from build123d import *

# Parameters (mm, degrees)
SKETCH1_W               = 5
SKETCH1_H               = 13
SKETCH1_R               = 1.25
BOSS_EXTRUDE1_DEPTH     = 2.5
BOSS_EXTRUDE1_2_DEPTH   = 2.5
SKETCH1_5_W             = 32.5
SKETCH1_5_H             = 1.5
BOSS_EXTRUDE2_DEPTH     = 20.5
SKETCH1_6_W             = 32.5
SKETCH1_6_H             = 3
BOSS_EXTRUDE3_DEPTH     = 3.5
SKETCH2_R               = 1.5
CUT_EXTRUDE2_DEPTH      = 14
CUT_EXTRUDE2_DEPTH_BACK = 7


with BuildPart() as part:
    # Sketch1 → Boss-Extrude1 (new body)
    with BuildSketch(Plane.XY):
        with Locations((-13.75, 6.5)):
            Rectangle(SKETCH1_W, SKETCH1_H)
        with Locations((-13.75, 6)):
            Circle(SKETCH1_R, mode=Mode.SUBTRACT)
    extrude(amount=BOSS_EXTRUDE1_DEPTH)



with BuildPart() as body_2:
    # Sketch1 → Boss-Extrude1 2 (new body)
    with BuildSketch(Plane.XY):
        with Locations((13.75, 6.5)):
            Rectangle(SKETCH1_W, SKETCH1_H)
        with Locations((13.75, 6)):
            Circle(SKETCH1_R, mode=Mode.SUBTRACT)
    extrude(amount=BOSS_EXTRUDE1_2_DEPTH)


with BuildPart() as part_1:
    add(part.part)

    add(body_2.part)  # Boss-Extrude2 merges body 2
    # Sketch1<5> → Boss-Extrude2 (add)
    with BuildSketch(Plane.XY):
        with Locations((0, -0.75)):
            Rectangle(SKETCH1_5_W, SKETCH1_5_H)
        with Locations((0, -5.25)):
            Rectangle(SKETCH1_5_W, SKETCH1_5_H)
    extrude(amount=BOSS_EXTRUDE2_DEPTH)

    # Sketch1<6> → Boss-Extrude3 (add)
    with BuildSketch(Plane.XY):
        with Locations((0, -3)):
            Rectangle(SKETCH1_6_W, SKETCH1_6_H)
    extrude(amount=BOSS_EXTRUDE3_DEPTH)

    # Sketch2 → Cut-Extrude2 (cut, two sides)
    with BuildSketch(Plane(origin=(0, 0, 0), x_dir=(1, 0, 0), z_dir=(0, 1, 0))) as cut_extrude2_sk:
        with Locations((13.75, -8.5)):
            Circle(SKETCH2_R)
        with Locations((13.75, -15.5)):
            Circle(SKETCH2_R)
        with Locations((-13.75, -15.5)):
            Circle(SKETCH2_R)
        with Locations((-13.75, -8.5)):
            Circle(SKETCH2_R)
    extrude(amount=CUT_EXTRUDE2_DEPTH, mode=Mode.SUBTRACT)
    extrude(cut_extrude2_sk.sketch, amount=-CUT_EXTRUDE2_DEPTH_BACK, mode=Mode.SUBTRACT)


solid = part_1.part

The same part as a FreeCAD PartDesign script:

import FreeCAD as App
import Part
import Sketcher
Q = App.Units.Quantity


def add_polygon(sketch, points):
    """Adds a closed chain of lines whose ends are joined by coincident constraints."""
    first, n = sketch.GeometryCount, len(points)
    for a, b in zip(points, points[1:] + points[:1]):
        sketch.addGeometry(Part.LineSegment(App.Vector(*a, 0), App.Vector(*b, 0)), False)
    for i in range(n):
        sketch.addConstraint(Sketcher.Constraint("Coincident", first + i, 2, first + (i + 1) % n, 1))

doc = App.newDocument("Part")
params = doc.addObject("Spreadsheet::Sheet", "Params")
for row, (alias, value) in enumerate([
    ("sketch1_diameter", "2.5 mm"),
    ("sketch1_width", "5 mm"),
    ("sketch1_height", "13 mm"),
    ("pad1_length", "2.5 mm"),
    ("sketch2_diameter", "2.5 mm"),
    ("sketch2_width", "5 mm"),
    ("sketch2_height", "13 mm"),
    ("pad2_length", "2.5 mm"),
    ("sketch3_width", "32.5 mm"),
    ("sketch3_height", "1.5 mm"),
    ("pad3_length", "20.5 mm"),
    ("sketch4_height", "3 mm"),
    ("sketch4_width", "32.5 mm"),
    ("pad4_length", "3.5 mm"),
    ("sketch5_diameter", "3 mm"),
], start=1):
    params.set(f"A{row}", alias)
    params.set(f"B{row}", "=" + value)
    params.setAlias(f"B{row}", alias)

body = doc.addObject("PartDesign::Body", "Body")

sketch1 = body.newObject("Sketcher::SketchObject", "Sketch")
sketch1.AttachmentSupport = (doc.getObject("XY_Plane"), [""])
sketch1.MapMode = "FlatFace"
add_polygon(sketch1, [(-16.2, 13), (-16.2, 0), (-11.2, 0), (-11.2, 13)])
sketch1.addGeometry(Part.Circle(App.Vector(-13.8, 6, 0), App.Vector(0, 0, 1), 1.2), False)
sketch1.addConstraint([
    Sketcher.Constraint("Vertical", 0),
    Sketcher.Constraint("Horizontal", 1),
    Sketcher.Constraint("Vertical", 2),
    Sketcher.Constraint("Horizontal", 3),
    Sketcher.Constraint("PointOnObject", 0, 2, -1),
    Sketcher.Constraint("Diameter", 4, Q("2.5 mm")),
    Sketcher.Constraint("DistanceX", 1, 1, 1, 2, Q("5 mm")),
    Sketcher.Constraint("DistanceY", 0, 2, 0, 1, Q("13 mm")),
    Sketcher.Constraint("DistanceY", -1, 1, 4, 3, Q("6 mm")),
    Sketcher.Constraint("DistanceX", 0, 2, 4, 3, Q("2.5 mm")),
    Sketcher.Constraint("DistanceX", 4, 3, -1, 1, Q("13.75 mm")),
])
sketch1.setExpression("Constraints[9]", "Params.sketch1_diameter")
sketch1.setExpression("Constraints[10]", "Params.sketch1_width")
sketch1.setExpression("Constraints[11]", "Params.sketch1_height")
pad1 = body.newObject("PartDesign::Pad", "Pad")
pad1.Profile = sketch1
pad1.setExpression("Length", "Params.pad1_length")
body2 = doc.addObject("PartDesign::Body", "Body001")

sketch2 = body2.newObject("Sketcher::SketchObject", "Sketch001")
sketch2.AttachmentSupport = (doc.getObject("XY_Plane001"), [""])
sketch2.MapMode = "FlatFace"
add_polygon(sketch2, [(11.2, 13), (11.2, 0), (16.2, 0), (16.2, 13)])
sketch2.addGeometry(Part.Circle(App.Vector(13.8, 6, 0), App.Vector(0, 0, 1), 1.2), False)
sketch2.addConstraint([
    Sketcher.Constraint("Vertical", 0),
    Sketcher.Constraint("Horizontal", 1),
    Sketcher.Constraint("Vertical", 2),
    Sketcher.Constraint("Horizontal", 3),
    Sketcher.Constraint("PointOnObject", 0, 2, -1),
    Sketcher.Constraint("Diameter", 4, Q("2.5 mm")),
    Sketcher.Constraint("DistanceX", 1, 1, 1, 2, Q("5 mm")),
    Sketcher.Constraint("DistanceY", 0, 2, 0, 1, Q("13 mm")),
    Sketcher.Constraint("DistanceY", -1, 1, 4, 3, Q("6 mm")),
    Sketcher.Constraint("DistanceX", 0, 2, 4, 3, Q("2.5 mm")),
    Sketcher.Constraint("DistanceX", -1, 1, 4, 3, Q("13.75 mm")),
])
sketch2.setExpression("Constraints[9]", "Params.sketch2_diameter")
sketch2.setExpression("Constraints[10]", "Params.sketch2_width")
sketch2.setExpression("Constraints[11]", "Params.sketch2_height")
pad2 = body2.newObject("PartDesign::Pad", "Pad001")
pad2.Profile = sketch2
pad2.setExpression("Length", "Params.pad2_length")
body.AllowCompound = True
doc.recompute()

boolean = body.newObject("PartDesign::Boolean", "Boolean")
boolean.Type = "Fuse"
boolean.addObjects([body2])

sketch3 = body.newObject("Sketcher::SketchObject", "Sketch002")
sketch3.AttachmentSupport = (doc.getObject("XY_Plane"), [""])
sketch3.MapMode = "FlatFace"
add_polygon(sketch3, [(-16.2, 0), (-16.2, -1.5), (16.2, -1.5), (16.2, 0)])
add_polygon(sketch3, [(-16.2, -4.5), (-16.2, -6), (16.2, -6), (16.2, -4.5)])
sketch3.addConstraint([
    Sketcher.Constraint("Vertical", 0),
    Sketcher.Constraint("Horizontal", 1),
    Sketcher.Constraint("Vertical", 2),
    Sketcher.Constraint("Horizontal", 3),
    Sketcher.Constraint("Vertical", 4),
    Sketcher.Constraint("Horizontal", 5),
    Sketcher.Constraint("Vertical", 6),
    Sketcher.Constraint("Horizontal", 7),
    Sketcher.Constraint("Symmetric", 2, 2, 3, 2, -1, 1),
    Sketcher.Constraint("Vertical", 3, 2, 4, 2),
    Sketcher.Constraint("Vertical", 2, 2, 5, 2),
    Sketcher.Constraint("Equal", 2, 4),
    Sketcher.Constraint("DistanceX", 1, 1, 1, 2, Q("32.5 mm")),
    Sketcher.Constraint("DistanceY", 0, 2, 0, 1, Q("1.5 mm")),
    Sketcher.Constraint("DistanceY", 4, 2, -1, 1, Q("6 mm")),
])
sketch3.setExpression("Constraints[20]", "Params.sketch3_width")
sketch3.setExpression("Constraints[21]", "Params.sketch3_height")
pad3 = body.newObject("PartDesign::Pad", "Pad002")
pad3.Profile = sketch3
pad3.setExpression("Length", "Params.pad3_length")

sketch4 = body.newObject("Sketcher::SketchObject", "Sketch003")
sketch4.AttachmentSupport = (doc.getObject("XY_Plane"), [""])
sketch4.MapMode = "FlatFace"
add_polygon(sketch4, [(-16.2, -1.5), (-16.2, -4.5), (16.2, -4.5), (16.2, -1.5)])
sketch4.addConstraint([
    Sketcher.Constraint("Vertical", 0),
    Sketcher.Constraint("Horizontal", 1),
    Sketcher.Constraint("Vertical", 2),
    Sketcher.Constraint("Horizontal", 3),
    Sketcher.Constraint("DistanceY", 0, 2, 0, 1, Q("3 mm")),
    Sketcher.Constraint("DistanceX", 1, 1, 1, 2, Q("32.5 mm")),
    Sketcher.Constraint("DistanceY", 0, 2, -1, 1, Q("4.5 mm")),
    Sketcher.Constraint("DistanceX", 0, 2, -1, 1, Q("16.25 mm")),
])
sketch4.setExpression("Constraints[8]", "Params.sketch4_height")
sketch4.setExpression("Constraints[9]", "Params.sketch4_width")
pad4 = body.newObject("PartDesign::Pad", "Pad003")
pad4.Profile = sketch4
pad4.setExpression("Length", "Params.pad4_length")

sketch5 = body.newObject("Sketcher::SketchObject", "Sketch004")
sketch5.AttachmentSupport = (doc.getObject("XZ_Plane"), [""])
sketch5.MapMode = "FlatFace"
sketch5.addGeometry([
    Part.Circle(App.Vector(13.8, 8.5, 0), App.Vector(0, 0, 1), 1.5),
    Part.Circle(App.Vector(13.8, 15.5, 0), App.Vector(0, 0, 1), 1.5),
    Part.Circle(App.Vector(-13.8, 15.5, 0), App.Vector(0, 0, 1), 1.5),
    Part.Circle(App.Vector(-13.8, 8.5, 0), App.Vector(0, 0, 1), 1.5),
], False)
sketch5.addConstraint([
    Sketcher.Constraint("Equal", 0, 1),
    Sketcher.Constraint("Equal", 1, 2),
    Sketcher.Constraint("Equal", 2, 3),
    Sketcher.Constraint("Symmetric", 1, 3, 2, 3, -2),
    Sketcher.Constraint("Symmetric", 0, 3, 3, 3, -2),
    Sketcher.Constraint("Vertical", 0, 3, 1, 3),
    Sketcher.Constraint("Diameter", 0, Q("3 mm")),
    Sketcher.Constraint("DistanceY", 0, 3, 1, 3, Q("7 mm")),
    Sketcher.Constraint("DistanceY", -1, 1, 0, 3, Q("8.5 mm")),
    Sketcher.Constraint("DistanceX", 2, 3, 1, 3, Q("27.5 mm")),
])
sketch5.setExpression("Constraints[6]", "Params.sketch5_diameter")
pocket1 = body.newObject("PartDesign::Pocket", "Pocket")
pocket1.Profile = sketch5
pocket1.Type = "ThroughAll"
pocket1.Midplane = True

doc.recompute()
